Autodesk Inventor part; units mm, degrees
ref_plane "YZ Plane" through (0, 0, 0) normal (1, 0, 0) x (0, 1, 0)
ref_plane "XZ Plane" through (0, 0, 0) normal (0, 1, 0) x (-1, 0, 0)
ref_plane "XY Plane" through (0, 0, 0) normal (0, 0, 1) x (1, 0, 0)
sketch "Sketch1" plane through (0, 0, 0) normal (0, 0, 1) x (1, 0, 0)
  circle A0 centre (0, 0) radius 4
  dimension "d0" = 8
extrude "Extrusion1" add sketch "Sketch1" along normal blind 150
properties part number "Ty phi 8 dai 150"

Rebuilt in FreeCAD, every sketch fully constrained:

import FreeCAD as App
import Part
import Sketcher
from FreeCAD import Vector
Q = App.Units.Quantity

doc = App.newDocument("Part")
body = doc.addObject("PartDesign::Body", "Body")

sketch1 = body.newObject("Sketcher::SketchObject", "Sketch")
sketch1.AttachmentSupport = (doc.getObject("XY_Plane"), [""])
sketch1.MapMode = "FlatFace"
sketch1.addGeometry(Part.Circle(Vector(0, 0, 0), Vector(0, 0, 1), 4), False)
sketch1.addConstraint(Sketcher.Constraint("Coincident", 0, 3, -1, 1))
sketch1.addConstraint(Sketcher.Constraint("Diameter", 0, Q("8 mm")))
pad1 = body.newObject("PartDesign::Pad", "Pad")
pad1.Profile = sketch1
pad1.Length = 150

doc.recompute()
